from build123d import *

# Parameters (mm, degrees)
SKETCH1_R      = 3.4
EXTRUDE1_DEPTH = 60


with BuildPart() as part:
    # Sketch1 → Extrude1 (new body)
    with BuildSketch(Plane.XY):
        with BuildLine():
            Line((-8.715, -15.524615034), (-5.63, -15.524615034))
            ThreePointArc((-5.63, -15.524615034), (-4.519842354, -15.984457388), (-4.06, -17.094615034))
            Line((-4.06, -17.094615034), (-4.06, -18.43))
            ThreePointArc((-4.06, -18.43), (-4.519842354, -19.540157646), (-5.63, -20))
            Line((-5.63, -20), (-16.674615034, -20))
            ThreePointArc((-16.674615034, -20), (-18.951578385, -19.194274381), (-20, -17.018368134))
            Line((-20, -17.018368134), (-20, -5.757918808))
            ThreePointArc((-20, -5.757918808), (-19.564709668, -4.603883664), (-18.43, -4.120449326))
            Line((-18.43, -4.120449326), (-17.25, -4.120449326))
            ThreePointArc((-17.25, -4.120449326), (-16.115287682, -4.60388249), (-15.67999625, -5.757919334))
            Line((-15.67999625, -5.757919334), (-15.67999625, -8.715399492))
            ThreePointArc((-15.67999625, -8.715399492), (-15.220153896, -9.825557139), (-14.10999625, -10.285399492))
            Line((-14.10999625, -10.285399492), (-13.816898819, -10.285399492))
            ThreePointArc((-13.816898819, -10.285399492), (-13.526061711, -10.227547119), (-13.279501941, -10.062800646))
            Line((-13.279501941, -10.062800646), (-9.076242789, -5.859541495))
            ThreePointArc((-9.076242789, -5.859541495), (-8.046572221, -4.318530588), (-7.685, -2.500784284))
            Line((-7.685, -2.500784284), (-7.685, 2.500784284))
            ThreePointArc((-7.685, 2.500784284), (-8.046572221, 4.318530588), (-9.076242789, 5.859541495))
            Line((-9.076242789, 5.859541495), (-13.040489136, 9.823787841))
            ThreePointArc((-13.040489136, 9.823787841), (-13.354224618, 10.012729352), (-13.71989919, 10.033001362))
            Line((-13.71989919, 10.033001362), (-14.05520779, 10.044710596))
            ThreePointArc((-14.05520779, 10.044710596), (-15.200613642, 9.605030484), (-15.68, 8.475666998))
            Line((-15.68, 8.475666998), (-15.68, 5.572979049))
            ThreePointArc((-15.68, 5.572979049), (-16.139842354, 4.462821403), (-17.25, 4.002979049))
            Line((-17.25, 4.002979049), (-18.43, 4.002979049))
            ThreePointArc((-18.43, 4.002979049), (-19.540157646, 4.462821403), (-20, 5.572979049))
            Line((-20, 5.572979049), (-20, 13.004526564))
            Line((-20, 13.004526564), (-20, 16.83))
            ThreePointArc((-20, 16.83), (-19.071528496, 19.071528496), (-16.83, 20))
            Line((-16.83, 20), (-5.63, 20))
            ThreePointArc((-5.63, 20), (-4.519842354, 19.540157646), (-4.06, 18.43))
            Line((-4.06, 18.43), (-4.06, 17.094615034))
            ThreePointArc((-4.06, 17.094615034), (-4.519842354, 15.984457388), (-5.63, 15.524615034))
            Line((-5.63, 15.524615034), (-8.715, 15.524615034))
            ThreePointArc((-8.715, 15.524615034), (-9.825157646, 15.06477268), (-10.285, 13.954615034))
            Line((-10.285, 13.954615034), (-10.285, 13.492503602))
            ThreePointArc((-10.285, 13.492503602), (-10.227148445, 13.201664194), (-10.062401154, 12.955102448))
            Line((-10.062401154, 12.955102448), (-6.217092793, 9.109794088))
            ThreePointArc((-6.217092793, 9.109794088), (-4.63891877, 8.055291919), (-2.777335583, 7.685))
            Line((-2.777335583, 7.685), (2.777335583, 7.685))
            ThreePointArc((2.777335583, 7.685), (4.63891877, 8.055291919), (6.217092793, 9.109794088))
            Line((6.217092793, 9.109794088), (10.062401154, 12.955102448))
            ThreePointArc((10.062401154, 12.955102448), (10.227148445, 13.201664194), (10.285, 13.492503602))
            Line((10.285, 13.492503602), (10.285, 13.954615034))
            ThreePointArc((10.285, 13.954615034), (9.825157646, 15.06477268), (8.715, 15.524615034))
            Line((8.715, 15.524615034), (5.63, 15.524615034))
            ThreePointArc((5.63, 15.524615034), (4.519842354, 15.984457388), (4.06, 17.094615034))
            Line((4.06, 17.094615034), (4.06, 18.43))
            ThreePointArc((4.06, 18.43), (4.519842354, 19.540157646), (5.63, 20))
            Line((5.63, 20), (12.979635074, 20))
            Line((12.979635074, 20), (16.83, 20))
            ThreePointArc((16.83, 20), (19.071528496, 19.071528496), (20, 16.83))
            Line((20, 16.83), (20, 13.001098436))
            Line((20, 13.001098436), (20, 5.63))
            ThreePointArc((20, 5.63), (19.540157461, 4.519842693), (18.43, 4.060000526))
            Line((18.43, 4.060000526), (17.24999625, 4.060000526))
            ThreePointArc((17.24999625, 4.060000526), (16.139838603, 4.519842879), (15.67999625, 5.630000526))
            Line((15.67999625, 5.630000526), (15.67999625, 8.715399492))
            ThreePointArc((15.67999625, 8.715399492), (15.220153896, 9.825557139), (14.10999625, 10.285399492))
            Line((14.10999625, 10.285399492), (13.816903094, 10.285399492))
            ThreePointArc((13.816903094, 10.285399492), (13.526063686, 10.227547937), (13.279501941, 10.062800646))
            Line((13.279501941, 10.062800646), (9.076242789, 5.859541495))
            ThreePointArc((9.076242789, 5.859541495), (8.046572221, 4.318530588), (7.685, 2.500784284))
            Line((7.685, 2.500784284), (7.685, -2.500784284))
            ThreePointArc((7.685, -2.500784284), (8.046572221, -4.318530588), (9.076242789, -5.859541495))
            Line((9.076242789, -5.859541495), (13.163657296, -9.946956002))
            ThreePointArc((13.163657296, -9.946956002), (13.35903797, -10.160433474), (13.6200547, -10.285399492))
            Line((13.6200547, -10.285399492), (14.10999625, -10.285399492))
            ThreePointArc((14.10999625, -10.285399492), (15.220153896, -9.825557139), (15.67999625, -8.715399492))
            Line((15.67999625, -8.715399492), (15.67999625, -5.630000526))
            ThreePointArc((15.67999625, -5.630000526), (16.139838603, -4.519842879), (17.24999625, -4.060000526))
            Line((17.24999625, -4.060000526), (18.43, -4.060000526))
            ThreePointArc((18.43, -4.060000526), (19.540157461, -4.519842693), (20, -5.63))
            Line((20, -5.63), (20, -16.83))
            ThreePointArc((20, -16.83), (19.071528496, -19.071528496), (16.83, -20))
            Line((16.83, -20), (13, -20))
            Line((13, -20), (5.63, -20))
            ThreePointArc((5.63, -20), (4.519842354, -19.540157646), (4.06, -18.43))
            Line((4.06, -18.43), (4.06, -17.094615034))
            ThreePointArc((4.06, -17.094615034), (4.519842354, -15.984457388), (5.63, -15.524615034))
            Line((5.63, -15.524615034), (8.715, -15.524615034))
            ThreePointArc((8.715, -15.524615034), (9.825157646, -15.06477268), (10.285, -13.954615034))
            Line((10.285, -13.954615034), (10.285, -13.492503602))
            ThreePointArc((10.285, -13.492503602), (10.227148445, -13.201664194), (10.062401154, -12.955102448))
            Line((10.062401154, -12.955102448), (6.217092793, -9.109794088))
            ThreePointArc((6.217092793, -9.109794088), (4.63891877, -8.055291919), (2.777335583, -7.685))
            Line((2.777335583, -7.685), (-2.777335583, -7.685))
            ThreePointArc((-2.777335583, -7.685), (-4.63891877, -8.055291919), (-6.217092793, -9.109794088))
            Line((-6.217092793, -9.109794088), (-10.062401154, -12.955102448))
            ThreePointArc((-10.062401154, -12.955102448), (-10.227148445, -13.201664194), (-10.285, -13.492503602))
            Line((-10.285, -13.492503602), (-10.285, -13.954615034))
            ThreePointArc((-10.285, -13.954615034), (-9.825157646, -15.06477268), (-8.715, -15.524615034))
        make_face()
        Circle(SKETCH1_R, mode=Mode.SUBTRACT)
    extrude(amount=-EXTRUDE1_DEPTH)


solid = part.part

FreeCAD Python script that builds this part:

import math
import FreeCAD as App
import Part
import Sketcher
Q = App.Units.Quantity

doc = App.newDocument("Part")
body = doc.addObject("PartDesign::Body", "Body")

sketch1 = body.newObject("Sketcher::SketchObject", "Sketch")
sketch1.AttachmentSupport = (doc.getObject("XY_Plane"), [""])
sketch1.MapMode = "FlatFace"
sketch1.addGeometry([
    Part.LineSegment(App.Vector(-5.63, -15.524615, 0), App.Vector(-8.715, -15.524615, 0)),
    Part.ArcOfCircle(Part.Circle(App.Vector(-8.715, -13.954615, 0), App.Vector(0, 0, 1), 1.57), math.radians(-180), math.radians(-90)),
    Part.LineSegment(App.Vector(-10.285, -13.954615, 0), App.Vector(-10.285, -13.492504, 0)),
    Part.ArcOfCircle(Part.Circle(App.Vector(-9.525, -13.492504, 0), App.Vector(0, 0, 1), 0.76), math.radians(135), math.radians(180)),
    Part.LineSegment(App.Vector(-10.062401, -12.955102, 0), App.Vector(-6.217093, -9.109794, 0)),
    Part.ArcOfCircle(Part.Circle(App.Vector(-2.777336, -12.549551, 0), App.Vector(0, 0, 1), 4.864551), math.radians(90), math.radians(135)),
    Part.LineSegment(App.Vector(-2.777336, -7.685, 0), App.Vector(2.777336, -7.685, 0)),
    Part.ArcOfCircle(Part.Circle(App.Vector(2.777336, -12.549551, 0), App.Vector(0, 0, 1), 4.864551), math.radians(45), math.radians(90)),
    Part.LineSegment(App.Vector(6.217093, -9.109794, 0), App.Vector(10.062401, -12.955102, 0)),
    Part.ArcOfCircle(Part.Circle(App.Vector(9.525, -13.492504, 0), App.Vector(0, 0, 1), 0.76), math.radians(0), math.radians(45)),
    Part.LineSegment(App.Vector(10.285, -13.492504, 0), App.Vector(10.285, -13.954615, 0)),
    Part.ArcOfCircle(Part.Circle(App.Vector(8.715, -13.954615, 0), App.Vector(0, 0, 1), 1.57), math.radians(-90), math.radians(0)),
    Part.LineSegment(App.Vector(8.715, -15.524615, 0), App.Vector(5.63, -15.524615, 0)),
    Part.ArcOfCircle(Part.Circle(App.Vector(5.63, -17.094615, 0), App.Vector(0, 0, 1), 1.57), math.radians(90), math.radians(180)),
    Part.LineSegment(App.Vector(4.06, -17.094615, 0), App.Vector(4.06, -18.43, 0)),
    Part.ArcOfCircle(Part.Circle(App.Vector(5.63, -18.43, 0), App.Vector(0, 0, 1), 1.57), math.radians(-180), math.radians(-90)),
    Part.LineSegment(App.Vector(5.63, -20, 0), App.Vector(16.83, -20, 0)),
    Part.ArcOfCircle(Part.Circle(App.Vector(16.83, -16.83, 0), App.Vector(0, 0, 1), 3.17), math.radians(-90), math.radians(0)),
    Part.LineSegment(App.Vector(20, -16.83, 0), App.Vector(20, -5.63, 0)),
    Part.ArcOfCircle(Part.Circle(App.Vector(18.43, -5.630001, 0), App.Vector(0, 0, 1), 1.57), math.radians(0.000019), math.radians(90)),
    Part.LineSegment(App.Vector(18.43, -4.060001, 0), App.Vector(17.249996, -4.060001, 0)),
    Part.ArcOfCircle(Part.Circle(App.Vector(17.249996, -5.630001, 0), App.Vector(0, 0, 1), 1.57), math.radians(90), math.radians(180)),
    Part.LineSegment(App.Vector(15.679996, -5.630001, 0), App.Vector(15.679996, -8.715399, 0)),
    Part.ArcOfCircle(Part.Circle(App.Vector(14.109996, -8.715399, 0), App.Vector(0, 0, 1), 1.57), math.radians(-90), math.radians(0)),
    Part.LineSegment(App.Vector(14.109996, -10.285399, 0), App.Vector(13.620055, -10.285399, 0)),
    Part.ArcOfCircle(Part.Circle(App.Vector(13.811732, -9.549968, 0), App.Vector(0, 0, 1), 0.76), math.radians(-148.509776), math.radians(-104.608114)),
    Part.LineSegment(App.Vector(13.163657, -9.946956, 0), App.Vector(9.076243, -5.859541, 0)),
    Part.ArcOfCircle(Part.Circle(App.Vector(12.435, -2.500784, 0), App.Vector(0, 0, 1), 4.75), math.radians(-180), math.radians(-135)),
    Part.LineSegment(App.Vector(7.685, -2.500784, 0), App.Vector(7.685, 2.500784, 0)),
    Part.ArcOfCircle(Part.Circle(App.Vector(12.435, 2.500784, 0), App.Vector(0, 0, 1), 4.75), math.radians(135), math.radians(180)),
    Part.LineSegment(App.Vector(9.076243, 5.859541, 0), App.Vector(13.279502, 10.062801, 0)),
    Part.ArcOfCircle(Part.Circle(App.Vector(13.816903, 9.525399, 0), App.Vector(0, 0, 1), 0.76), math.radians(90), math.radians(135)),
    Part.LineSegment(App.Vector(13.816903, 10.285399, 0), App.Vector(14.109996, 10.285399, 0)),
    Part.ArcOfCircle(Part.Circle(App.Vector(14.109996, 8.715399, 0), App.Vector(0, 0, 1), 1.57), math.radians(0), math.radians(90)),
    Part.LineSegment(App.Vector(15.679996, 8.715399, 0), App.Vector(15.679996, 5.630001, 0)),
    Part.ArcOfCircle(Part.Circle(App.Vector(17.249996, 5.630001, 0), App.Vector(0, 0, 1), 1.57), math.radians(180), math.radians(270)),
    Part.LineSegment(App.Vector(17.249996, 4.060001, 0), App.Vector(18.43, 4.060001, 0)),
    Part.ArcOfCircle(Part.Circle(App.Vector(18.43, 5.630001, 0), App.Vector(0, 0, 1), 1.57), math.radians(-90), math.radians(-0.000019)),
    Part.LineSegment(App.Vector(20, 5.63, 0), App.Vector(20, 16.83, 0)),
    Part.ArcOfCircle(Part.Circle(App.Vector(16.83, 16.83, 0), App.Vector(0, 0, 1), 3.17), math.radians(0), math.radians(90)),
    Part.LineSegment(App.Vector(16.83, 20, 0), App.Vector(5.63, 20, 0)),
    Part.ArcOfCircle(Part.Circle(App.Vector(5.63, 18.43, 0), App.Vector(0, 0, 1), 1.57), math.radians(90), math.radians(180)),
    Part.LineSegment(App.Vector(4.06, 18.43, 0), App.Vector(4.06, 17.094615, 0)),
    Part.ArcOfCircle(Part.Circle(App.Vector(5.63, 17.094615, 0), App.Vector(0, 0, 1), 1.57), math.radians(-180), math.radians(-90)),
    Part.LineSegment(App.Vector(5.63, 15.524615, 0), App.Vector(8.715, 15.524615, 0)),
    Part.ArcOfCircle(Part.Circle(App.Vector(8.715, 13.954615, 0), App.Vector(0, 0, 1), 1.57), math.radians(0), math.radians(90)),
    Part.LineSegment(App.Vector(10.285, 13.954615, 0), App.Vector(10.285, 13.492504, 0)),
    Part.ArcOfCircle(Part.Circle(App.Vector(9.525, 13.492504, 0), App.Vector(0, 0, 1), 0.76), math.radians(-45), math.radians(0)),
    Part.LineSegment(App.Vector(10.062401, 12.955102, 0), App.Vector(6.217093, 9.109794, 0)),
    Part.ArcOfCircle(Part.Circle(App.Vector(2.777336, 12.549551, 0), App.Vector(0, 0, 1), 4.864551), math.radians(-90), math.radians(-45)),
    Part.LineSegment(App.Vector(2.777336, 7.685, 0), App.Vector(-2.777336, 7.685, 0)),
    Part.ArcOfCircle(Part.Circle(App.Vector(-2.777336, 12.549551, 0), App.Vector(0, 0, 1), 4.864551), math.radians(-135), math.radians(-90)),
    Part.LineSegment(App.Vector(-6.217093, 9.109794, 0), App.Vector(-10.062401, 12.955102, 0)),
    Part.ArcOfCircle(Part.Circle(App.Vector(-9.525, 13.492504, 0), App.Vector(0, 0, 1), 0.76), math.radians(180), math.radians(225)),
    Part.LineSegment(App.Vector(-10.285, 13.492504, 0), App.Vector(-10.285, 13.954615, 0)),
    Part.ArcOfCircle(Part.Circle(App.Vector(-8.715, 13.954615, 0), App.Vector(0, 0, 1), 1.57), math.radians(90), math.radians(180)),
    Part.LineSegment(App.Vector(-8.715, 15.524615, 0), App.Vector(-5.63, 15.524615, 0)),
    Part.ArcOfCircle(Part.Circle(App.Vector(-5.63, 17.094615, 0), App.Vector(0, 0, 1), 1.57), math.radians(-90), math.radians(0)),
    Part.LineSegment(App.Vector(-4.06, 17.094615, 0), App.Vector(-4.06, 18.43, 0)),
    Part.ArcOfCircle(Part.Circle(App.Vector(-5.63, 18.43, 0), App.Vector(0, 0, 1), 1.57), math.radians(0), math.radians(90)),
    Part.LineSegment(App.Vector(-5.63, 20, 0), App.Vector(-16.83, 20, 0)),
    Part.ArcOfCircle(Part.Circle(App.Vector(-16.83, 16.83, 0), App.Vector(0, 0, 1), 3.17), math.radians(90), math.radians(180)),
    Part.LineSegment(App.Vector(-20, 16.83, 0), App.Vector(-20, 5.572979, 0)),
    Part.ArcOfCircle(Part.Circle(App.Vector(-18.43, 5.572979, 0), App.Vector(0, 0, 1), 1.57), math.radians(-180), math.radians(-90)),
    Part.LineSegment(App.Vector(-18.43, 4.002979, 0), App.Vector(-17.25, 4.002979, 0)),
    Part.ArcOfCircle(Part.Circle(App.Vector(-17.25, 5.572979, 0), App.Vector(0, 0, 1), 1.57), math.radians(-90), math.radians(0)),
    Part.LineSegment(App.Vector(-15.68, 5.572979, 0), App.Vector(-15.68, 8.475667, 0)),
    Part.ArcOfCircle(Part.Circle(App.Vector(-14.11, 8.475667, 0), App.Vector(0, 0, 1), 1.57), math.radians(88), math.radians(180)),
    Part.LineSegment(App.Vector(-14.055208, 10.044711, 0), App.Vector(-13.719899, 10.033001, 0)),
    Part.ArcOfCircle(Part.Circle(App.Vector(-13.57789, 9.286387, 0), App.Vector(0, 0, 1), 0.76), math.radians(45), math.radians(100.769233)),
    Part.LineSegment(App.Vector(-13.040489, 9.823788, 0), App.Vector(-9.076243, 5.859541, 0)),
    Part.ArcOfCircle(Part.Circle(App.Vector(-12.435, 2.500784, 0), App.Vector(0, 0, 1), 4.75), math.radians(0), math.radians(45)),
    Part.LineSegment(App.Vector(-7.685, 2.500784, 0), App.Vector(-7.685, -2.500784, 0)),
    Part.ArcOfCircle(Part.Circle(App.Vector(-12.435, -2.500784, 0), App.Vector(0, 0, 1), 4.75), math.radians(-45), math.radians(0)),
    Part.LineSegment(App.Vector(-9.076243, -5.859541, 0), App.Vector(-13.279502, -10.062801, 0)),
    Part.ArcOfCircle(Part.Circle(App.Vector(-13.816903, -9.525399, 0), App.Vector(0, 0, 1), 0.76), math.radians(-89.999678), math.radians(-45)),
    Part.LineSegment(App.Vector(-13.816899, -10.285399, 0), App.Vector(-14.109996, -10.285399, 0)),
    Part.ArcOfCircle(Part.Circle(App.Vector(-14.109996, -8.715399, 0), App.Vector(0, 0, 1), 1.57), math.radians(180), math.radians(270)),
    Part.LineSegment(App.Vector(-15.679996, -8.715399, 0), App.Vector(-15.679996, -5.757919, 0)),
    Part.ArcOfCircle(Part.Circle(App.Vector(-17.248546, -5.690449, 0), App.Vector(0, 0, 1), 1.57), math.radians(-2.463042), math.radians(90.05307)),
    Part.LineSegment(App.Vector(-17.25, -4.120449, 0), App.Vector(-18.43, -4.120449, 0)),
    Part.ArcOfCircle(Part.Circle(App.Vector(-18.43145, -5.690449, 0), App.Vector(0, 0, 1), 1.57), math.radians(89.947068), math.radians(182.463023)),
    Part.LineSegment(App.Vector(-20, -5.757919, 0), App.Vector(-20, -17.018368, 0)),
    Part.ArcOfCircle(Part.Circle(App.Vector(-16.835361, -16.834078, 0), App.Vector(0, 0, 1), 3.17), math.radians(-176.667196), math.radians(-87.093362)),
    Part.LineSegment(App.Vector(-16.674615, -20, 0), App.Vector(-5.63, -20, 0)),
    Part.ArcOfCircle(Part.Circle(App.Vector(-5.63, -18.43, 0), App.Vector(0, 0, 1), 1.57), math.radians(-90), math.radians(0)),
    Part.LineSegment(App.Vector(-4.06, -18.43, 0), App.Vector(-4.06, -17.094615, 0)),
    Part.ArcOfCircle(Part.Circle(App.Vector(-5.63, -17.094615, 0), App.Vector(0, 0, 1), 1.57), math.radians(0), math.radians(90)),
    Part.Circle(App.Vector(0, 0, 0), App.Vector(0, 0, 1), 3.4),
], False)
sketch1.addConstraint([
    Sketcher.Constraint("Tangent", 0, 2, 1, 2),
    Sketcher.Constraint("Tangent", 1, 1, 2, 1),
    Sketcher.Constraint("Tangent", 2, 2, 3, 2),
    Sketcher.Constraint("Tangent", 3, 1, 4, 1),
    Sketcher.Constraint("Tangent", 4, 2, 5, 2),
    Sketcher.Constraint("Tangent", 5, 1, 6, 1),
    Sketcher.Constraint("Tangent", 6, 2, 7, 2),
    Sketcher.Constraint("Tangent", 7, 1, 8, 1),
    Sketcher.Constraint("Tangent", 8, 2, 9, 2),
    Sketcher.Constraint("Tangent", 9, 1, 10, 1),
    Sketcher.Constraint("Tangent", 10, 2, 11, 2),
    Sketcher.Constraint("Tangent", 11, 1, 12, 1),
    Sketcher.Constraint("Tangent", 12, 2, 13, 1),
    Sketcher.Constraint("Tangent", 13, 2, 14, 1),
    Sketcher.Constraint("Tangent", 14, 2, 15, 1),
    Sketcher.Constraint("Tangent", 15, 2, 16, 1),
    Sketcher.Constraint("Tangent", 16, 2, 17, 1),
    Sketcher.Constraint("Tangent", 17, 2, 18, 1),
    Sketcher.Constraint("Tangent", 18, 2, 19, 1),
    Sketcher.Constraint("Tangent", 19, 2, 20, 1),
    Sketcher.Constraint("Tangent", 20, 2, 21, 1),
    Sketcher.Constraint("Tangent", 21, 2, 22, 1),
    Sketcher.Constraint("Tangent", 22, 2, 23, 2),
    Sketcher.Constraint("Tangent", 23, 1, 24, 1),
    Sketcher.Constraint("Coincident", 24, 2, 25, 2),
    Sketcher.Constraint("Coincident", 25, 1, 26, 1),
    Sketcher.Constraint("Tangent", 26, 2, 27, 2),
    Sketcher.Constraint("Tangent", 27, 1, 28, 1),
    Sketcher.Constraint("Tangent", 28, 2, 29, 2),
    Sketcher.Constraint("Tangent", 29, 1, 30, 1),
    Sketcher.Constraint("Tangent", 30, 2, 31, 2),
    Sketcher.Constraint("Tangent", 31, 1, 32, 1),
    Sketcher.Constraint("Tangent", 32, 2, 33, 2),
    Sketcher.Constraint("Tangent", 33, 1, 34, 1),
    Sketcher.Constraint("Tangent", 34, 2, 35, 1),
    Sketcher.Constraint("Tangent", 35, 2, 36, 1),
    Sketcher.Constraint("Tangent", 36, 2, 37, 1),
    Sketcher.Constraint("Tangent", 37, 2, 38, 1),
    Sketcher.Constraint("Tangent", 38, 2, 39, 1),
    Sketcher.Constraint("Tangent", 39, 2, 40, 1),
    Sketcher.Constraint("Tangent", 40, 2, 41, 1),
    Sketcher.Constraint("Tangent", 41, 2, 42, 1),
    Sketcher.Constraint("Tangent", 42, 2, 43, 1),
    Sketcher.Constraint("Tangent", 43, 2, 44, 1),
    Sketcher.Constraint("Tangent", 44, 2, 45, 2),
    Sketcher.Constraint("Tangent", 45, 1, 46, 1),
    Sketcher.Constraint("Tangent", 46, 2, 47, 2),
    Sketcher.Constraint("Tangent", 47, 1, 48, 1),
    Sketcher.Constraint("Tangent", 48, 2, 49, 2),
    Sketcher.Constraint("Tangent", 49, 1, 50, 1),
    Sketcher.Constraint("Tangent", 50, 2, 51, 2),
    Sketcher.Constraint("Tangent", 51, 1, 52, 1),
    Sketcher.Constraint("Tangent", 52, 2, 53, 2),
    Sketcher.Constraint("Tangent", 53, 1, 54, 1),
    Sketcher.Constraint("Tangent", 54, 2, 55, 2),
    Sketcher.Constraint("Tangent", 55, 1, 56, 1),
    Sketcher.Constraint("Tangent", 56, 2, 57, 1),
    Sketcher.Constraint("Tangent", 57, 2, 58, 1),
    Sketcher.Constraint("Tangent", 58, 2, 59, 1),
    Sketcher.Constraint("Tangent", 59, 2, 60, 1),
    Sketcher.Constraint("Tangent", 60, 2, 61, 1),
    Sketcher.Constraint("Tangent", 61, 2, 62, 1),
    Sketcher.Constraint("Tangent", 62, 2, 63, 1),
    Sketcher.Constraint("Tangent", 63, 2, 64, 1),
    Sketcher.Constraint("Tangent", 64, 2, 65, 1),
    Sketcher.Constraint("Tangent", 65, 2, 66, 1),
    Sketcher.Constraint("Tangent", 66, 2, 67, 2),
    Sketcher.Constraint("Tangent", 67, 1, 68, 1),
    Sketcher.Constraint("Coincident", 68, 2, 69, 2),
    Sketcher.Constraint("Tangent", 69, 1, 70, 1),
    Sketcher.Constraint("Tangent", 70, 2, 71, 2),
    Sketcher.Constraint("Tangent", 71, 1, 72, 1),
    Sketcher.Constraint("Tangent", 72, 2, 73, 2),
    Sketcher.Constraint("Tangent", 73, 1, 74, 1),
    Sketcher.Constraint("Tangent", 74, 2, 75, 2),
    Sketcher.Constraint("Coincident", 75, 1, 76, 1),
    Sketcher.Constraint("Tangent", 76, 2, 77, 2),
    Sketcher.Constraint("Tangent", 77, 1, 78, 1),
    Sketcher.Constraint("Coincident", 78, 2, 79, 1),
    Sketcher.Constraint("Coincident", 79, 2, 80, 1),
    Sketcher.Constraint("Coincident", 80, 2, 81, 1),
    Sketcher.Constraint("Coincident", 81, 2, 82, 1),
    Sketcher.Constraint("Coincident", 82, 2, 83, 1),
    Sketcher.Constraint("Coincident", 83, 2, 84, 1),
    Sketcher.Constraint("Tangent", 84, 2, 85, 1),
    Sketcher.Constraint("Tangent", 85, 2, 86, 1),
    Sketcher.Constraint("Tangent", 86, 2, 87, 1),
    Sketcher.Constraint("Tangent", 87, 2, 0, 1),
    Sketcher.Constraint("Horizontal", 0),
    Sketcher.Constraint("Vertical", 2),
    Sketcher.Constraint("Horizontal", 6),
    Sketcher.Constraint("Vertical", 10),
    Sketcher.Constraint("Horizontal", 12),
    Sketcher.Constraint("Vertical", 14),
    Sketcher.Constraint("Horizontal", 16),
    Sketcher.Constraint("Vertical", 18),
    Sketcher.Constraint("Horizontal", 20),
    Sketcher.Constraint("Vertical", 22),
    Sketcher.Constraint("Horizontal", 24),
    Sketcher.Constraint("Vertical", 28),
    Sketcher.Constraint("Horizontal", 32),
    Sketcher.Constraint("Vertical", 34),
    Sketcher.Constraint("Horizontal", 36),
    Sketcher.Constraint("Vertical", 38),
    Sketcher.Constraint("Horizontal", 40),
    Sketcher.Constraint("Vertical", 42),
    Sketcher.Constraint("Horizontal", 44),
    Sketcher.Constraint("Vertical", 46),
    Sketcher.Constraint("Horizontal", 50),
    Sketcher.Constraint("Vertical", 54),
    Sketcher.Constraint("Horizontal", 56),
    Sketcher.Constraint("Vertical", 58),
    Sketcher.Constraint("Horizontal", 60),
    Sketcher.Constraint("Vertical", 62),
    Sketcher.Constraint("Horizontal", 64),
    Sketcher.Constraint("Vertical", 66),
    Sketcher.Constraint("Vertical", 72),
    Sketcher.Constraint("Horizontal", 76),
    Sketcher.Constraint("Vertical", 78),
    Sketcher.Constraint("Horizontal", 80),
    Sketcher.Constraint("Vertical", 82),
    Sketcher.Constraint("Horizontal", 84),
    Sketcher.Constraint("Vertical", 86),
    Sketcher.Constraint("Coincident", 88, 3, -1, 1),
    Sketcher.Constraint("Equal", 5, 7),
    Sketcher.Constraint("Equal", 3, 9),
    Sketcher.Constraint("Equal", 1, 11),
    Sketcher.Constraint("Equal", 11, 13),
    Sketcher.Constraint("Equal", 13, 15),
    Sketcher.Constraint("Equal", 15, 19),
    Sketcher.Constraint("Equal", 19, 21),
    Sketcher.Constraint("Equal", 21, 23),
    Sketcher.Constraint("Equal", 9, 25),
    Sketcher.Constraint("Equal", 27, 29),
    Sketcher.Constraint("Equal", 25, 31),
    Sketcher.Constraint("Equal", 23, 33),
    Sketcher.Constraint("Equal", 33, 35),
    Sketcher.Constraint("Equal", 35, 37),
    Sketcher.Constraint("Equal", 17, 39),
    Sketcher.Constraint("Equal", 37, 41),
    Sketcher.Constraint("Equal", 41, 43),
    Sketcher.Constraint("Equal", 43, 45),
    Sketcher.Constraint("Equal", 31, 47),
    Sketcher.Constraint("Equal", 7, 49),
    Sketcher.Constraint("Equal", 49, 51),
    Sketcher.Constraint("Equal", 47, 53),
    Sketcher.Constraint("Equal", 45, 55),
    Sketcher.Constraint("Equal", 55, 57),
    Sketcher.Constraint("Equal", 57, 59),
    Sketcher.Constraint("Equal", 39, 61),
    Sketcher.Constraint("Equal", 59, 63),
    Sketcher.Constraint("Equal", 63, 65),
    Sketcher.Constraint("Equal", 65, 67),
    Sketcher.Constraint("Equal", 53, 69),
    Sketcher.Constraint("Equal", 29, 71),
    Sketcher.Constraint("Equal", 71, 73),
    Sketcher.Constraint("Equal", 69, 75),
    Sketcher.Constraint("Equal", 67, 77),
    Sketcher.Constraint("Equal", 77, 79),
    Sketcher.Constraint("Equal", 79, 81),
    Sketcher.Constraint("Equal", 61, 83),
    Sketcher.Constraint("Equal", 81, 85),
    Sketcher.Constraint("Equal", 85, 87),
    Sketcher.Constraint("Symmetric", 1, 3, 45, 3, -1, 1),
    Sketcher.Constraint("Symmetric", 5, 3, 49, 3, -1, 1),
    Sketcher.Constraint("Symmetric", 9, 3, 53, 3, -1, 1),
    Sketcher.Constraint("Symmetric", 13, 3, 57, 3, -1, 1),
    Sketcher.Constraint("Symmetric", 17, 3, 61, 3, -1, 1),
    Sketcher.Constraint("Symmetric", 27, 3, 71, 3, -1, 1),
    Sketcher.Constraint("Symmetric", 31, 3, 75, 3, -1, 1),
    Sketcher.Constraint("Symmetric", 41, 3, 85, 3, -1, 1),
    Sketcher.Constraint("Symmetric", 3, 3, 9, 3, -2),
    Sketcher.Constraint("Symmetric", 43, 3, 57, 3, -2),
    Sketcher.Constraint("Symmetric", 39, 3, 61, 3, -2),
    Sketcher.Constraint("Symmetric", 23, 3, 77, 3, -2),
    Sketcher.Constraint("Symmetric", 48, 2, 51, 1, -2),
    Sketcher.Constraint("Symmetric", 29, 1, 70, 2, -2),
    Sketcher.Constraint("Symmetric", 26, 2, 73, 1, -2),
    Sketcher.Constraint("Symmetric", 21, 3, 35, 3, -1),
    Sketcher.Constraint("Perpendicular", 4, 8),
    Sketcher.Constraint("Parallel", 8, 26),
    Sketcher.Constraint("Perpendicular", 26, 30),
    Sketcher.Constraint("Horizontal", 78, 2, 81, 2),
    Sketcher.Constraint("Vertical", 64, 2, 79, 2),
    Sketcher.Constraint("Vertical", 63, 2, 80, 2),
    Sketcher.Constraint("Vertical", 62, 2, 81, 2),
    Sketcher.Constraint("Equal", 60, 18),
    Sketcher.Constraint("Diameter", 88, 6.8),
    Sketcher.Constraint("Angle", 68, Q("-2 deg")),
    Sketcher.Constraint("Radius", 1, 1.57),
    Sketcher.Constraint("Radius", 3, 0.76),
    Sketcher.Constraint("Radius", 17, 3.17),
    Sketcher.Constraint("Radius", 27, 4.75),
    Sketcher.Constraint("DistanceX", 16, 1, 16, 2, 11.2),
    Sketcher.Constraint("DistanceY", 15, 2, -1, 1, 20.0),
    Sketcher.Constraint("DistanceX", -1, 1, 17, 2, 20.0),
    Sketcher.Constraint("DistanceX", 64, 1, 64, 2, 1.18),
    Sketcher.Constraint("DistanceX", 0, 2, 0, 1, 3.085),
    Sketcher.Constraint("Radius", 5, 4.864551),
    Sketcher.Constraint("DistanceY", 22, 2, 22, 1, 3.085399),
    Sketcher.Constraint("DistanceX", -1, 1, 27, 3, 12.435),
    Sketcher.Constraint("DistanceY", 5, 1, -1, 1, 7.685),
    Sketcher.Constraint("DistanceY", -1, 1, 68, 2, 10.033001),
    Sketcher.Constraint("DistanceX", 6, 1, 6, 2, 5.554671),
    Sketcher.Constraint("DistanceX", 24, 2, 24, 1, 0.489942),
    Sketcher.Constraint("DistanceY", 2, 1, 2, 2, 0.462111),
    Sketcher.Constraint("DistanceY", 28, 1, 28, 2, 5.001569),
    Sketcher.Constraint("DistanceY", 62, 2, 62, 1, 11.257021),
    Sketcher.Constraint("DistanceY", 78, 1, 78, 2, 2.95748),
    Sketcher.Constraint("DistanceY", 82, 2, 82, 1, 11.260449),
    Sketcher.Constraint("DistanceX", 68, 2, -1, 1, 13.719899),
    Sketcher.Constraint("DistanceX", 75, 1, -1, 1, 13.816899),
    Sketcher.Constraint("DistanceX", 20, 2, 20, 1, 1.180004),
    Sketcher.Constraint("DistanceX", 84, 1, 84, 2, 11.044615),
    Sketcher.Constraint("DistanceX", -1, 1, 25, 3, 13.811732),
    Sketcher.Constraint("DistanceY", 79, 3, -1, 1, 5.690449),
])
pad1 = body.newObject("PartDesign::Pad", "Pad")
pad1.Profile = sketch1
pad1.Length = 60
pad1.Reversed = True

doc.recompute()
